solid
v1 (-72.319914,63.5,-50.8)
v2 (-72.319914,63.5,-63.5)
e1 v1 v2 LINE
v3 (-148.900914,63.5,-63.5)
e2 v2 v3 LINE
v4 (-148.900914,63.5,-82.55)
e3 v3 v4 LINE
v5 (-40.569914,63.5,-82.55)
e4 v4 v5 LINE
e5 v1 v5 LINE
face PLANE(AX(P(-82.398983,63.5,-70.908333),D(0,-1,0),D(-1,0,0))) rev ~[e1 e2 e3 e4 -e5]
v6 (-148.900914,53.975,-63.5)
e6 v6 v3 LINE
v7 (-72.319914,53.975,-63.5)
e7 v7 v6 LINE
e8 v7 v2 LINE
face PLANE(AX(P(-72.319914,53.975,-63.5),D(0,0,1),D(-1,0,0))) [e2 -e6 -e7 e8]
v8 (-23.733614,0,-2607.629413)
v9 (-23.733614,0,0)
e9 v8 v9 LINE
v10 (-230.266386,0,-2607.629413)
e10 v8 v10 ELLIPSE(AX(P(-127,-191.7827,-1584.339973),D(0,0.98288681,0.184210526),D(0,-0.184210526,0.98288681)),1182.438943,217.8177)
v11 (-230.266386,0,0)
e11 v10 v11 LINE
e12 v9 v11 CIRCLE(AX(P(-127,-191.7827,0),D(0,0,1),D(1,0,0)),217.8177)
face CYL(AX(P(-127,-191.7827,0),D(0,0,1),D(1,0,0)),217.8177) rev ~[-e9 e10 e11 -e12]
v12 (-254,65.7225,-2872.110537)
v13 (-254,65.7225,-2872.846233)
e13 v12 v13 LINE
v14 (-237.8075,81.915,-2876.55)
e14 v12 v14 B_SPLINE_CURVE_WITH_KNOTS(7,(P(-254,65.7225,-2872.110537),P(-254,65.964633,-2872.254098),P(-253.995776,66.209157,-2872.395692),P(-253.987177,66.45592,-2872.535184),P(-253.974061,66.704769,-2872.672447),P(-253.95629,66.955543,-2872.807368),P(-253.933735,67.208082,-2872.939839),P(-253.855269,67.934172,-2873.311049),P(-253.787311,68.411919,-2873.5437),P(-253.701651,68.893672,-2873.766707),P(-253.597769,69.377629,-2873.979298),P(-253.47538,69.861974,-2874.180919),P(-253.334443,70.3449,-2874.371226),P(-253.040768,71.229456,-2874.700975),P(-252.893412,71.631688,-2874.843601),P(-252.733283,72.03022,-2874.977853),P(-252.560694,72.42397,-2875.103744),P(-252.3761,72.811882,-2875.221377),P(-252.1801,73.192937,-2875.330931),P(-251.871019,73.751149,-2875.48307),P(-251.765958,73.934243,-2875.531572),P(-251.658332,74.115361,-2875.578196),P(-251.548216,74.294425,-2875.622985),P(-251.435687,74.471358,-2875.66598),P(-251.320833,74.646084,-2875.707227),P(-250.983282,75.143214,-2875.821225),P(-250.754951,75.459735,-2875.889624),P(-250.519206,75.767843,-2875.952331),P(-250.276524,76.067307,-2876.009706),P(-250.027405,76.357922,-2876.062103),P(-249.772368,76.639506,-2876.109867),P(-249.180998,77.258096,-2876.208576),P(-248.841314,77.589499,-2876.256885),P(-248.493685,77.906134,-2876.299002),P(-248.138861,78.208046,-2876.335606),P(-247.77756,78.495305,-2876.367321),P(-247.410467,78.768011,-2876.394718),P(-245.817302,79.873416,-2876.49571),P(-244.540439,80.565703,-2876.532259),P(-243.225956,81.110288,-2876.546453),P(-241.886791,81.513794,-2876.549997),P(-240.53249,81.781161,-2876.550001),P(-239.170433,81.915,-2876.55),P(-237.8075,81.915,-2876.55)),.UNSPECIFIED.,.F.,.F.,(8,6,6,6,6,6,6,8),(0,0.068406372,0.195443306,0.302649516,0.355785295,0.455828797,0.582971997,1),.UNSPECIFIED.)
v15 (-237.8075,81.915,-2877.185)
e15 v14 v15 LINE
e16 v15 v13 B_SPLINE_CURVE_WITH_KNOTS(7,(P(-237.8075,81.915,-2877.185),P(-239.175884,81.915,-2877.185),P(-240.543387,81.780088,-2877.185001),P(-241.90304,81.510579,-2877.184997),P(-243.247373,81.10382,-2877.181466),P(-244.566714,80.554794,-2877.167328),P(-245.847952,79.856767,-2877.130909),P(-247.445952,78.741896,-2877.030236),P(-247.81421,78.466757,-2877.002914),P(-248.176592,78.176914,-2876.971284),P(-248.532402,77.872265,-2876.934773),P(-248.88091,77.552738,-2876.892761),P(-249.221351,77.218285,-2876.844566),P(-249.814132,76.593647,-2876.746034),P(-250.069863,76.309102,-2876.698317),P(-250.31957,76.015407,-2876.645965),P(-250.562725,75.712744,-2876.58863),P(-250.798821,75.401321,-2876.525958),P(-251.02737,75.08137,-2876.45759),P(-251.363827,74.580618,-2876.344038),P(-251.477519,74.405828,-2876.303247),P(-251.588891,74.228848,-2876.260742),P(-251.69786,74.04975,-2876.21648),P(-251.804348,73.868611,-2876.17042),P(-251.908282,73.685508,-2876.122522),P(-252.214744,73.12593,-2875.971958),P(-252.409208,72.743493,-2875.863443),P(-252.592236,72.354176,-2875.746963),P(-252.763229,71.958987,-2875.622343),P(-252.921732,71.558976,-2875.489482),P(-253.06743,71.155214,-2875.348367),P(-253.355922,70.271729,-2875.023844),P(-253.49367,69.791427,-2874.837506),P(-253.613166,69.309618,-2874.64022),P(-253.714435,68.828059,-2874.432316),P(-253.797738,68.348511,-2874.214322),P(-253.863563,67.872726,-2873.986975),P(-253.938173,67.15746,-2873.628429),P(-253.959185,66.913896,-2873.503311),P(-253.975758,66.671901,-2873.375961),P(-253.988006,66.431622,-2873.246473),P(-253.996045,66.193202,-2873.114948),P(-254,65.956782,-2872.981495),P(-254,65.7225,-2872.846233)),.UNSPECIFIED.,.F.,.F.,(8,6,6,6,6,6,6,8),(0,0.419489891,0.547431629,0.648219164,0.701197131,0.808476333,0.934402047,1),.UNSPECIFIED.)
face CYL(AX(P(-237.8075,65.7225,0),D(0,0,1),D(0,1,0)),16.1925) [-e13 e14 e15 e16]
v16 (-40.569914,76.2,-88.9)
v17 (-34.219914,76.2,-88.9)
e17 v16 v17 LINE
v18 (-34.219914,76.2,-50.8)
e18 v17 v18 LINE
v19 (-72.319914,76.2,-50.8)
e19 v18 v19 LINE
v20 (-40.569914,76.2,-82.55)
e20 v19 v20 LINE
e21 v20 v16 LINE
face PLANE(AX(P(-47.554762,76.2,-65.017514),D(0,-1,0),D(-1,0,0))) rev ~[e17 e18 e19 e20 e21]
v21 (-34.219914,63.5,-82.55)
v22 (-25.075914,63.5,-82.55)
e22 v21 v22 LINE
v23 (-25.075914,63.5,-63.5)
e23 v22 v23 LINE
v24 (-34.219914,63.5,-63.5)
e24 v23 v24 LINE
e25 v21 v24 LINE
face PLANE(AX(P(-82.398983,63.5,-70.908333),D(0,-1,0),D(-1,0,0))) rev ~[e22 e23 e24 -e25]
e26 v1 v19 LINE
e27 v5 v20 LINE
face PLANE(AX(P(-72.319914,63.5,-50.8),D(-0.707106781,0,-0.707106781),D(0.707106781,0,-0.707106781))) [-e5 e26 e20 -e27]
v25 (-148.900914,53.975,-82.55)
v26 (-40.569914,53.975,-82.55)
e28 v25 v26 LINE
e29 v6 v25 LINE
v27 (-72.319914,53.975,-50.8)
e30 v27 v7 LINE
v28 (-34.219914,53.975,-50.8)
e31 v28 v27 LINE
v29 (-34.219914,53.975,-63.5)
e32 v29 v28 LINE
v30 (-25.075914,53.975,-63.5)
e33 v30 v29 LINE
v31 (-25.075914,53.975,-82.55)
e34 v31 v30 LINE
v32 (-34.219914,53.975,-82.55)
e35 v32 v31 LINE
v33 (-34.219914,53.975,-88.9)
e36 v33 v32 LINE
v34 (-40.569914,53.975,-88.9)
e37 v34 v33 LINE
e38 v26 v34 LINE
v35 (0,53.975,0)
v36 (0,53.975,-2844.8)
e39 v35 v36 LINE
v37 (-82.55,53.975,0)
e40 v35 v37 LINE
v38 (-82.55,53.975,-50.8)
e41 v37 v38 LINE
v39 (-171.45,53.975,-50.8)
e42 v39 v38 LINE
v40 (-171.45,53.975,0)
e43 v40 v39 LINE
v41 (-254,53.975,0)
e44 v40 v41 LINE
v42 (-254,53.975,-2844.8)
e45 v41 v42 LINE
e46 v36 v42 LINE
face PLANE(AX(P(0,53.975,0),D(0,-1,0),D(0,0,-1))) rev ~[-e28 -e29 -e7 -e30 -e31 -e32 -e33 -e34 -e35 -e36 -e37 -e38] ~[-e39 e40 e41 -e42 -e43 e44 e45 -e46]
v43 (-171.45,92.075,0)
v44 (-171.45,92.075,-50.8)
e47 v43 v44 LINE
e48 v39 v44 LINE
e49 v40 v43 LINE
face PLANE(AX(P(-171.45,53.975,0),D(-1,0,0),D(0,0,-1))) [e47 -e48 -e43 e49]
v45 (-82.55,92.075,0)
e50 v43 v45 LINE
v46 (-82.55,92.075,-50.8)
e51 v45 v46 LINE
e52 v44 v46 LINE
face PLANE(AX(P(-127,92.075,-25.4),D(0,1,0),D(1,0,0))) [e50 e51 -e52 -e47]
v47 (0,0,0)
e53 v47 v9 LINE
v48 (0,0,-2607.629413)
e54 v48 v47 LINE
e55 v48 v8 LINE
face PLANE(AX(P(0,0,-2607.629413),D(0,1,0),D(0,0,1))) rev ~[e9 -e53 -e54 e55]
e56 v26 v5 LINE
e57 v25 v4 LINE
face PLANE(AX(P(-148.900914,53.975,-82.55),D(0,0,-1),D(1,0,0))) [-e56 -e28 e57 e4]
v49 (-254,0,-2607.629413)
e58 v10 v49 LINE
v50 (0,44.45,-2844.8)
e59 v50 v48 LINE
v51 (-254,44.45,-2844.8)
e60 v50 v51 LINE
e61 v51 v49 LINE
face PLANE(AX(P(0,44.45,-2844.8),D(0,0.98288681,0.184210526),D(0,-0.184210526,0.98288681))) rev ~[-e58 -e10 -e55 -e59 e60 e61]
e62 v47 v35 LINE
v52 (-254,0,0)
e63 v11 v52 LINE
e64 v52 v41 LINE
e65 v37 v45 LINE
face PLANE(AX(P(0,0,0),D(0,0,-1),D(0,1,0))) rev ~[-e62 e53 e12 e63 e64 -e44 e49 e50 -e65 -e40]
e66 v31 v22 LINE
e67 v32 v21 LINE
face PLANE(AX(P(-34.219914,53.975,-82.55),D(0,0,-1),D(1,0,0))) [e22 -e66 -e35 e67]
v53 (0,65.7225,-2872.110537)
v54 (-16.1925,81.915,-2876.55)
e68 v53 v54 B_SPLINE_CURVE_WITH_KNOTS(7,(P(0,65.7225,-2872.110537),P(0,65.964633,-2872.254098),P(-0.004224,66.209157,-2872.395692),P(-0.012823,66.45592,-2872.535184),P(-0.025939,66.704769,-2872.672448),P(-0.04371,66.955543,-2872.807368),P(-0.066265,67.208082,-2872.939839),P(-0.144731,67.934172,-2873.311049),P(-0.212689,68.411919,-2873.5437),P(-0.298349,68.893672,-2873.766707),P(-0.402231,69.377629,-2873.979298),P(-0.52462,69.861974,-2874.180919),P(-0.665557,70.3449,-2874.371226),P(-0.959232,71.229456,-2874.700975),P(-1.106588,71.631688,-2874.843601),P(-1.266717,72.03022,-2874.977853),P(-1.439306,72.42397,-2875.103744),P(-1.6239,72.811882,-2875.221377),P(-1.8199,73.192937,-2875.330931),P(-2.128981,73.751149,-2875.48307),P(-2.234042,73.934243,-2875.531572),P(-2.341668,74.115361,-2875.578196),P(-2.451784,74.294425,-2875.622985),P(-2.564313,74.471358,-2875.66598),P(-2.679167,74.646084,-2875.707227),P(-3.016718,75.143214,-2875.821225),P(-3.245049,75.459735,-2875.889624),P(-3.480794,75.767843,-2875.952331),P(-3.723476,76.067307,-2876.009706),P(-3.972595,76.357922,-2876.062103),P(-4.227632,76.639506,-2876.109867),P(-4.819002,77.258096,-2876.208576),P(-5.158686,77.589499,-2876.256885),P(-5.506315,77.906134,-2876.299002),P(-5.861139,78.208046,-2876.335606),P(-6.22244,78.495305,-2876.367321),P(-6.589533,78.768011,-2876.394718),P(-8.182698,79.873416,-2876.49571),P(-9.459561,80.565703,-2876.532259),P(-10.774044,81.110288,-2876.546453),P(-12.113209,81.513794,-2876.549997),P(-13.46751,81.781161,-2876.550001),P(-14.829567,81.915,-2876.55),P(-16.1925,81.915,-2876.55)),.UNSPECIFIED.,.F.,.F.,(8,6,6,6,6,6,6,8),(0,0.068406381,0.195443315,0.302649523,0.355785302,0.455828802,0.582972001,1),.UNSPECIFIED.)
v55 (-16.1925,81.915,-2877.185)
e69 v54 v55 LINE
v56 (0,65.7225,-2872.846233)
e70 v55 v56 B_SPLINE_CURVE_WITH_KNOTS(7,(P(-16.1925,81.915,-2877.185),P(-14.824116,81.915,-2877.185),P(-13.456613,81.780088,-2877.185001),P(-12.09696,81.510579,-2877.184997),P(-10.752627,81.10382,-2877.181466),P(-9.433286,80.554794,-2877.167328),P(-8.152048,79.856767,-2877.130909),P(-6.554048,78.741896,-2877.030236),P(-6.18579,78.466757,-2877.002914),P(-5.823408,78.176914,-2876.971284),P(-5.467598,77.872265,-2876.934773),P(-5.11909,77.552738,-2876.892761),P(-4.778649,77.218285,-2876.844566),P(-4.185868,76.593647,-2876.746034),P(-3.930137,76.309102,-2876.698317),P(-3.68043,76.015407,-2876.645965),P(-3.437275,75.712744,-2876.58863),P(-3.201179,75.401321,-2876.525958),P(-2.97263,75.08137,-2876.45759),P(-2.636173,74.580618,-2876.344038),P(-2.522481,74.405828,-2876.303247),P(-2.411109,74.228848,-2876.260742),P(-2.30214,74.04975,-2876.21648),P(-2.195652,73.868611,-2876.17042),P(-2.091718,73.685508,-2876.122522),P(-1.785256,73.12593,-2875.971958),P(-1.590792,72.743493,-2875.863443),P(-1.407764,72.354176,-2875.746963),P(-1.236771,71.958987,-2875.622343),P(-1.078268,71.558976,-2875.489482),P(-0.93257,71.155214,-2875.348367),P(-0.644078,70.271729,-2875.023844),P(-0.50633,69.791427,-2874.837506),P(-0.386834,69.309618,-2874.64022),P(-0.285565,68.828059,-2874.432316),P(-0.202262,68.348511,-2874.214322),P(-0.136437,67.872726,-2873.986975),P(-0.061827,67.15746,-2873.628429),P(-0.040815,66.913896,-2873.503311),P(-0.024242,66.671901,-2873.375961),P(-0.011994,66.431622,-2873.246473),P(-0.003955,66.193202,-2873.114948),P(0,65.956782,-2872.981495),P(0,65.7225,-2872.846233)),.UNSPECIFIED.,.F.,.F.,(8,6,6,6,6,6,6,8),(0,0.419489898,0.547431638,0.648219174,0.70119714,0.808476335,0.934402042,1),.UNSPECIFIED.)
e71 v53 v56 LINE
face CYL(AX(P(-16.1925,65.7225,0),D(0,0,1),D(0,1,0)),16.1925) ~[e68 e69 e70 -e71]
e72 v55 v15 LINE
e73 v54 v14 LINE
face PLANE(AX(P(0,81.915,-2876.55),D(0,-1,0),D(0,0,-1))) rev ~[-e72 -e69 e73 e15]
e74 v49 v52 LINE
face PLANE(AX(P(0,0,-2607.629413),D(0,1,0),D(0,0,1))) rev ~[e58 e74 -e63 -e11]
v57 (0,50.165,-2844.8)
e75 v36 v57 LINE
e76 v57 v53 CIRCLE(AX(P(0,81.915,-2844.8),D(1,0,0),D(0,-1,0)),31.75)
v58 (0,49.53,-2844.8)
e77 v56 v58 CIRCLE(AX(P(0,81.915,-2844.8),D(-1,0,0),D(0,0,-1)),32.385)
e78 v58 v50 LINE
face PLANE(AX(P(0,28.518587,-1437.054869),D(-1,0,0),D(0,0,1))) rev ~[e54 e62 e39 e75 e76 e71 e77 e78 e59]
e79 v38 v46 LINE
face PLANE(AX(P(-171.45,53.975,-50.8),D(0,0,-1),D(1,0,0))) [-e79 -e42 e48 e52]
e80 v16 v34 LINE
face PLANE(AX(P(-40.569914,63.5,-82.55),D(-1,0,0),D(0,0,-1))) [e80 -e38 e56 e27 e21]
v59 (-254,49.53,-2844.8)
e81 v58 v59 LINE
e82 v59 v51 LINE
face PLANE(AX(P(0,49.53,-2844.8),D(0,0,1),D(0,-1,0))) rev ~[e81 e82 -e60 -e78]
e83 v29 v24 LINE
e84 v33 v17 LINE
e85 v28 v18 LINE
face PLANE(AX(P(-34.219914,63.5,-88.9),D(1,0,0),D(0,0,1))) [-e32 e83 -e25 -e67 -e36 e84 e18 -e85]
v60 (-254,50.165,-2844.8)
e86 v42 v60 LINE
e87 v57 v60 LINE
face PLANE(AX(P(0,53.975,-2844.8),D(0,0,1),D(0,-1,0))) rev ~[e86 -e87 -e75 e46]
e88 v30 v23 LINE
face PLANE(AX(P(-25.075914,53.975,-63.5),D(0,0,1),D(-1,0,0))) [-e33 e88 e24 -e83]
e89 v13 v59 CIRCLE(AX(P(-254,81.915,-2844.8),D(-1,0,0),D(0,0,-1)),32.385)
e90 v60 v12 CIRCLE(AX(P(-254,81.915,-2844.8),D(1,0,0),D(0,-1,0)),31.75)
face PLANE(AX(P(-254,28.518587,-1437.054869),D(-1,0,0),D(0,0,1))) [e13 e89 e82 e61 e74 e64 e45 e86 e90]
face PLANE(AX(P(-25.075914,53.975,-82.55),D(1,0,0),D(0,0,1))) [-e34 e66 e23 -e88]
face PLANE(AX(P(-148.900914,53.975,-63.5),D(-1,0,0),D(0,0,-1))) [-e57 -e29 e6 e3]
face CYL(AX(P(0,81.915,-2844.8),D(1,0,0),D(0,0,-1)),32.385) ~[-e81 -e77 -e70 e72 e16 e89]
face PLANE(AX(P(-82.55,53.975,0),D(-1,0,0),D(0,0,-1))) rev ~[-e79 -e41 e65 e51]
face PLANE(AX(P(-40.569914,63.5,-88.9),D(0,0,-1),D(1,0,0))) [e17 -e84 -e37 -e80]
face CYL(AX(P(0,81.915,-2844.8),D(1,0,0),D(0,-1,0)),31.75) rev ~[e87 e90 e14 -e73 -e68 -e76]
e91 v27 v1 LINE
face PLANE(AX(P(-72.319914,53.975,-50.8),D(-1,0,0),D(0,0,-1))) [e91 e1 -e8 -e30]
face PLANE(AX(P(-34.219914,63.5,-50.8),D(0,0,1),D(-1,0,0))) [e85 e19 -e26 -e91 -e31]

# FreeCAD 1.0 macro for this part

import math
import FreeCAD as App
import Part
import Sketcher
from FreeCAD import Vector
Q = App.Units.Quantity


def add_polygon(sketch, points):
    """Adds a closed chain of lines whose ends are joined by coincident constraints."""
    first, n = sketch.GeometryCount, len(points)
    for a, b in zip(points, points[1:] + points[:1]):
        sketch.addGeometry(Part.LineSegment(App.Vector(*a, 0), App.Vector(*b, 0)), False)
    for i in range(n):
        sketch.addConstraint(Sketcher.Constraint("Coincident", first + i, 2, first + (i + 1) % n, 1))

doc = App.newDocument("Part")
body = doc.addObject("PartDesign::Body", "Body")

sketch1 = doc.addObject("Sketcher::SketchObject", "Sketch")
body.addObject(sketch1)
sketch1.AttachmentSupport = (doc.YZ_Plane, [""])
sketch1.MapMode = "FlatFace"
sketch1.addGeometry([
    Part.LineSegment(Vector(0, -2607.6, 0), Vector(44.5, -2844.8, 0)),
    Part.LineSegment(Vector(44.5, -2844.8, 0), Vector(49.5, -2844.8, 0)),
    Part.ArcOfCircle(Part.Circle(Vector(81.9, -2844.8, 0), Vector(0, 0, 1), 32.4), math.radians(180), math.radians(270)),
    Part.LineSegment(Vector(81.9, -2877.2, 0), Vector(81.9, -2876.6, 0)),
    Part.ArcOfCircle(Part.Circle(Vector(81.9, -2844.8, 0), Vector(0, 0, 1), 31.7), math.radians(180), math.radians(270)),
    Part.LineSegment(Vector(50.2, -2844.8, 0), Vector(54, -2844.8, 0)),
    Part.LineSegment(Vector(54, -2844.8, 0), Vector(54, 0, 0)),
    Part.LineSegment(Vector(54, 0, 0), Vector(0, 0, 0)),
    Part.LineSegment(Vector(0, 0, 0), Vector(0, -2607.6, 0)),
], False)
sketch1.addConstraint([
    Sketcher.Constraint("Coincident", 0, 2, 1, 1),
    Sketcher.Constraint("Coincident", 1, 2, 2, 1),
    Sketcher.Constraint("Coincident", 2, 2, 3, 1),
    Sketcher.Constraint("Coincident", 3, 2, 4, 2),
    Sketcher.Constraint("Coincident", 4, 1, 5, 1),
    Sketcher.Constraint("Coincident", 5, 2, 6, 1),
    Sketcher.Constraint("Coincident", 6, 2, 7, 1),
    Sketcher.Constraint("Coincident", 7, 2, 8, 1),
    Sketcher.Constraint("Coincident", 8, 2, 0, 1),
    Sketcher.Constraint("Horizontal", 1),
    Sketcher.Constraint("Vertical", 3),
    Sketcher.Constraint("Horizontal", 5),
    Sketcher.Constraint("Vertical", 6),
    Sketcher.Constraint("Horizontal", 7),
    Sketcher.Constraint("Vertical", 8),
    Sketcher.Constraint("Coincident", 7, 2, -1, 1),
    Sketcher.Constraint("Coincident", 4, 3, 2, 3),
    Sketcher.Constraint("Horizontal", 4, 3, 0, 2),
    Sketcher.Constraint("Horizontal", 1, 2, 4, 1),
    Sketcher.Constraint("Vertical", 4, 3, 2, 2),
    Sketcher.Constraint("DistanceY", 6, 1, 6, 2, Q("112 in")),
    Sketcher.Constraint("Radius", 4, Q("1.25 in")),
    Sketcher.Constraint("DistanceX", 1, 1, 1, 2, Q("0.2 in")),
    Sketcher.Constraint("Radius", 2, Q("1.275 in")),
    Sketcher.Constraint("Distance", 0, Q("9.5 in")),
    Sketcher.Constraint("DistanceX", 5, 1, 5, 2, Q("0.15 in")),
    Sketcher.Constraint("DistanceX", 7, 2, 7, 1, Q("2.125 in")),
])
pad1 = doc.addObject("PartDesign::Pad", "Pad")
body.addObject(pad1)
pad1.Profile = sketch1
pad1.Length = Q("10 in")
pad1.Reversed = True

sketch2 = doc.addObject("Sketcher::SketchObject", "Sketch001")
body.addObject(sketch2)
sketch2.AttachmentSupport = (doc.XY_Plane, [""])
sketch2.MapMode = "FlatFace"
sketch2.addGeometry([
    Part.LineSegment(Vector(0, 66, 0), Vector(0, 82, 0)),
    Part.LineSegment(Vector(0, 82, 0), Vector(-16, 82, 0)),
    Part.ArcOfCircle(Part.Circle(Vector(-16, 66, 0), Vector(0, 0, 1), 16), math.radians(0), math.radians(90)),
    Part.LineSegment(Vector(-254, 82, 0), Vector(-254, 66, 0)),
    Part.ArcOfCircle(Part.Circle(Vector(-238, 66, 0), Vector(0, 0, 1), 16), math.radians(90), math.radians(180)),
    Part.LineSegment(Vector(-238, 82, 0), Vector(-254, 82, 0)),
], False)
sketch2.addConstraint([
    Sketcher.Constraint("Coincident", 0, 2, 1, 1),
    Sketcher.Constraint("Tangent", 1, 2, 2, 2),
    Sketcher.Constraint("Tangent", 2, 1, 0, 1),
    Sketcher.Constraint("Tangent", 3, 2, 4, 2),
    Sketcher.Constraint("Tangent", 4, 1, 5, 1),
    Sketcher.Constraint("Coincident", 5, 2, 3, 1),
    Sketcher.Constraint("Vertical", 0),
    Sketcher.Constraint("Horizontal", 1),
    Sketcher.Constraint("Vertical", 3),
    Sketcher.Constraint("Horizontal", 5),
    Sketcher.Constraint("Equal", 2, 4),
    Sketcher.Constraint("PointOnObject", 0, 2, -2),
    Sketcher.Constraint("Horizontal", 2, 3, 4, 3),
    Sketcher.Constraint("DistanceX", 3, 2, -1, 1, Q("10 in")),
    Sketcher.Constraint("Radius", 2, Q("0.6375 in")),
    Sketcher.Constraint("DistanceY", -1, 1, 0, 2, Q("3.225 in")),
])
pocket1 = doc.addObject("PartDesign::Pocket", "Pocket")
body.addObject(pocket1)
pocket1.Profile = sketch2
pocket1.Type = "ThroughAll"

sketch3 = doc.addObject("Sketcher::SketchObject", "Sketch002")
body.addObject(sketch3)
sketch3.AttachmentSupport = (doc.XY_Plane, [""])
sketch3.MapMode = "FlatFace"
sketch3.addGeometry(Part.Circle(Vector(-127, -192, 0), Vector(0, 0, 1), 218), False)
sketch3.addConstraint([
    Sketcher.Constraint("Diameter", 0, Q("17.151 in")),
    Sketcher.Constraint("DistanceX", 0, 3, -1, 1, Q("5 in")),
    Sketcher.Constraint("DistanceY", 0, 3, -1, 1, Q("7.5505 in")),
])
pocket2 = doc.addObject("PartDesign::Pocket", "Pocket001")
body.addObject(pocket2)
pocket2.Profile = sketch3
pocket2.Type = "ThroughAll"

sketch4 = doc.addObject("Sketcher::SketchObject", "Sketch003")
body.addObject(sketch4)
sketch4.AttachmentSupport = (doc.XZ_Plane, [""])
sketch4.MapMode = "FlatFace"
sketch4.AttachmentOffset = App.Placement(Vector(0, 0, -2.125 * 25.4), App.Rotation())
add_polygon(sketch4, [(-171, -51), (-171, 0), (-83, 0), (-83, -51)])
sketch4.addConstraint([
    Sketcher.Constraint("Vertical", 0),
    Sketcher.Constraint("Horizontal", 1),
    Sketcher.Constraint("Vertical", 2),
    Sketcher.Constraint("Horizontal", 3),
    Sketcher.Constraint("PointOnObject", 0, 2, -1),
    Sketcher.Constraint("DistanceY", 0, 1, 0, 2, Q("2 in")),
    Sketcher.Constraint("DistanceX", 1, 1, 1, 2, Q("3.5 in")),
    Sketcher.Constraint("DistanceX", 0, 2, -1, 1, Q("6.75 in")),
])
pad2 = doc.addObject("PartDesign::Pad", "Pad001")
body.addObject(pad2)
pad2.Profile = sketch4
pad2.Length = Q("1.5 in")
pad2.Reversed = True

sketch5 = doc.addObject("Sketcher::SketchObject", "Sketch004")
body.addObject(sketch5)
sketch5.AttachmentSupport = (doc.XZ_Plane, [""])
sketch5.MapMode = "FlatFace"
sketch5.AttachmentOffset = App.Placement(Vector(0, 0, -2.125 * 25.4), App.Rotation())
add_polygon(sketch5, [(-34, -83), (-34, -89), (-41, -89), (-41, -83), (-149, -83), (-149, -64), (-72, -64), (-72, -51), (-34, -51), (-34, -64), (-25, -64), (-25, -83)])
sketch5.addConstraint([
    Sketcher.Constraint("Vertical", 0),
    Sketcher.Constraint("Horizontal", 1),
    Sketcher.Constraint("Vertical", 2),
    Sketcher.Constraint("Horizontal", 3),
    Sketcher.Constraint("Vertical", 4),
    Sketcher.Constraint("Horizontal", 5),
    Sketcher.Constraint("Vertical", 6),
    Sketcher.Constraint("Horizontal", 7),
    Sketcher.Constraint("Vertical", 8),
    Sketcher.Constraint("Horizontal", 9),
    Sketcher.Constraint("Vertical", 10),
    Sketcher.Constraint("Horizontal", 11),
    Sketcher.Constraint("Horizontal", 5, 2, 8, 2),
    Sketcher.Constraint("Horizontal", 3, 2, 10, 2),
    Sketcher.Constraint("Vertical", 0, 2, 7, 2),
    Sketcher.Constraint("Equal", 1, 0),
    Sketcher.Constraint("DistanceX", 7, 1, 7, 2, Q("1.5 in")),
    Sketcher.Constraint("DistanceY", 6, 1, 6, 2, Q("0.5 in")),
    Sketcher.Constraint("DistanceY", 6, 2, -1, 1, Q("2 in")),
    Sketcher.Constraint("DistanceY", 1, 2, 4, 2, Q("1 in")),
    Sketcher.Constraint("DistanceX", 1, 2, 1, 1, Q("0.25 in")),
    Sketcher.Constraint("DistanceX", 9, 1, 9, 2, Q("0.36 in")),
    Sketcher.Constraint("DistanceX", 3, 2, 3, 1, Q("4.265 in")),
    Sketcher.Constraint("DistanceX", 0, 2, -1, 1, Q("34.219914 mm")),
])
pad3 = doc.addObject("PartDesign::Pad", "Pad002")
body.addObject(pad3)
pad3.Profile = sketch5
pad3.Length = Q("0.375 in")
pad3.Reversed = True

sketch6 = doc.addObject("Sketcher::SketchObject", "Sketch005")
body.addObject(sketch6)
sketch6.AttachmentSupport = (doc.XZ_Plane, [""])
sketch6.MapMode = "FlatFace"
sketch6.AttachmentOffset = App.Placement(Vector(0, 0, -2.5 * 25.4), App.Rotation())
add_polygon(sketch6, [(-41, -83), (-72, -51), (-34, -51), (-34, -89), (-41, -89)])
sketch6.addConstraint([
    Sketcher.Constraint("Horizontal", 1),
    Sketcher.Constraint("Vertical", 2),
    Sketcher.Constraint("Horizontal", 3),
    Sketcher.Constraint("Vertical", 4),
    Sketcher.Constraint("Equal", 1, 2),
    Sketcher.Constraint("Equal", 3, 4),
    Sketcher.Constraint("DistanceX", 1, 1, 1, 2, Q("1.5 in")),
    Sketcher.Constraint("DistanceY", 0, 2, -1, 1, Q("2 in")),
    Sketcher.Constraint("DistanceX", 3, 2, 3, 1, Q("0.25 in")),
    Sketcher.Constraint("DistanceX", 0, 2, -1, 1, Q("72.319914 mm")),
])
pad4 = doc.addObject("PartDesign::Pad", "Pad003")
body.addObject(pad4)
pad4.Profile = sketch6
pad4.Length = Q("0.5 in")
pad4.Reversed = True

doc.recompute()
